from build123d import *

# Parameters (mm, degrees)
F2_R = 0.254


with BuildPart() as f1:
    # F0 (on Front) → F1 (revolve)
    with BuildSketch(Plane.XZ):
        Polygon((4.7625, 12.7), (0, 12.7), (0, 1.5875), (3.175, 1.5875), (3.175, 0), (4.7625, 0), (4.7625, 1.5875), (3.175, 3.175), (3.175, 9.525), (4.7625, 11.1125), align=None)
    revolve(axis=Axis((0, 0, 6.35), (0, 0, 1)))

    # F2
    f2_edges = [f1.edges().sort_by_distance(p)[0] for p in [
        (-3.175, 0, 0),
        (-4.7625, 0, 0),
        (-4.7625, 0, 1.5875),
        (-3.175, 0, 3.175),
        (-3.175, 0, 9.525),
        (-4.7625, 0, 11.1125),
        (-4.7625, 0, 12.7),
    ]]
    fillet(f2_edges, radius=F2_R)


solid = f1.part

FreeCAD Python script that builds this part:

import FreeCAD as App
import Part
import Sketcher

V = App.Vector
Q = App.Units.Quantity


def edges_at(feature, points):
    """Names of the edges that pass closest to the given points."""
    edges = feature.Shape.Edges
    near = lambda p: min(range(len(edges)), key=lambda i: edges[i].distToShape(Part.Vertex(*p))[0])
    return sorted({f"Edge{near(p) + 1}" for p in points})


def add_polygon(sketch, points):
    """Adds a closed chain of lines whose ends are joined by coincident constraints."""
    first, n = sketch.GeometryCount, len(points)
    for a, b in zip(points, points[1:] + points[:1]):
        sketch.addGeometry(Part.LineSegment(App.Vector(*a, 0), App.Vector(*b, 0)), False)
    for i in range(n):
        sketch.addConstraint(Sketcher.Constraint("Coincident", first + i, 2, first + (i + 1) % n, 1))

doc = App.newDocument("Part")
params = doc.addObject("Spreadsheet::Sheet", "Params")
for row, (alias, value) in enumerate([
    ("sketch1_height", "0.25 in"),
    ("sketch1_width", "0.1875 in"),
    ("revolution_angle", "360 deg"),
    ("fillet_radius", "0.01 in"),
], start=1):
    params.set(f"A{row}", alias)
    params.set(f"B{row}", "=" + value)
    params.setAlias(f"B{row}", alias)

body = doc.addObject("PartDesign::Body", "Body")

sketch1 = body.newObject("Sketcher::SketchObject", "Sketch")
sketch1.AttachmentSupport = (doc.getObject("XZ_Plane"), [""])
sketch1.MapMode = "FlatFace"
add_polygon(sketch1, [(4.8, 12.7), (0, 12.7), (0, 1.6), (3.2, 1.6), (3.2, 0), (4.8, 0), (4.8, 1.6), (3.2, 3.2), (3.2, 9.5), (4.8, 11.1)])
sketch1.addConstraint(Sketcher.Constraint("Horizontal", 0))
sketch1.addConstraint(Sketcher.Constraint("Vertical", 1))
sketch1.addConstraint(Sketcher.Constraint("Horizontal", 2))
sketch1.addConstraint(Sketcher.Constraint("Vertical", 3))
sketch1.addConstraint(Sketcher.Constraint("Horizontal", 4))
sketch1.addConstraint(Sketcher.Constraint("Vertical", 5))
sketch1.addConstraint(Sketcher.Constraint("Vertical", 7))
sketch1.addConstraint(Sketcher.Constraint("Vertical", 9))
sketch1.addConstraint(Sketcher.Constraint("PointOnObject", 0, 2, -2))
sketch1.addConstraint(Sketcher.Constraint("PointOnObject", 3, 2, -1))
sketch1.addConstraint(Sketcher.Constraint("Perpendicular", 6, 8))
sketch1.addConstraint(Sketcher.Constraint("Horizontal", 2, 2, 5, 2))
sketch1.addConstraint(Sketcher.Constraint("Vertical", 3, 2, 6, 2))
sketch1.addConstraint(Sketcher.Constraint("Vertical", 5, 2, 8, 2))
sketch1.addConstraint(Sketcher.Constraint("Equal", 4, 3))
sketch1.addConstraint(Sketcher.Constraint("Equal", 5, 9))
sketch1.addConstraint(Sketcher.Constraint("Equal", 6, 8))
sketch1.addConstraint(Sketcher.Constraint("DistanceY", 7, 1, 7, 2, Q("0.25 in")))
sketch1.addConstraint(Sketcher.Constraint("DistanceY", -1, 1, 0, 2, Q("0.5 in")))
sketch1.addConstraint(Sketcher.Constraint("DistanceX", 0, 2, 0, 1, Q("0.1875 in")))
sketch1.setExpression("Constraints[27]", "Params.sketch1_height")
sketch1.setExpression("Constraints[29]", "Params.sketch1_width")
revolution = body.newObject("PartDesign::Revolution", "Revolution")
revolution.Profile = sketch1
revolution.ReferenceAxis = (sketch1, ["V_Axis"])
revolution.setExpression("Angle", "Params.revolution_angle")
doc.recompute()

fillet = body.newObject("PartDesign::Fillet", "Fillet")
fillet.Base = (revolution, edges_at(revolution, [
    (-3.175, 0, 0),
    (-4.763, 0, 0),
    (-4.763, 0, 1.587),
    (-3.175, 0, 3.175),
    (-3.175, 0, 9.525),
    (-4.763, 0, 11.113),
    (-4.763, 0, 12.7),
]))
fillet.setExpression("Radius", "Params.fillet_radius")

doc.recompute()
